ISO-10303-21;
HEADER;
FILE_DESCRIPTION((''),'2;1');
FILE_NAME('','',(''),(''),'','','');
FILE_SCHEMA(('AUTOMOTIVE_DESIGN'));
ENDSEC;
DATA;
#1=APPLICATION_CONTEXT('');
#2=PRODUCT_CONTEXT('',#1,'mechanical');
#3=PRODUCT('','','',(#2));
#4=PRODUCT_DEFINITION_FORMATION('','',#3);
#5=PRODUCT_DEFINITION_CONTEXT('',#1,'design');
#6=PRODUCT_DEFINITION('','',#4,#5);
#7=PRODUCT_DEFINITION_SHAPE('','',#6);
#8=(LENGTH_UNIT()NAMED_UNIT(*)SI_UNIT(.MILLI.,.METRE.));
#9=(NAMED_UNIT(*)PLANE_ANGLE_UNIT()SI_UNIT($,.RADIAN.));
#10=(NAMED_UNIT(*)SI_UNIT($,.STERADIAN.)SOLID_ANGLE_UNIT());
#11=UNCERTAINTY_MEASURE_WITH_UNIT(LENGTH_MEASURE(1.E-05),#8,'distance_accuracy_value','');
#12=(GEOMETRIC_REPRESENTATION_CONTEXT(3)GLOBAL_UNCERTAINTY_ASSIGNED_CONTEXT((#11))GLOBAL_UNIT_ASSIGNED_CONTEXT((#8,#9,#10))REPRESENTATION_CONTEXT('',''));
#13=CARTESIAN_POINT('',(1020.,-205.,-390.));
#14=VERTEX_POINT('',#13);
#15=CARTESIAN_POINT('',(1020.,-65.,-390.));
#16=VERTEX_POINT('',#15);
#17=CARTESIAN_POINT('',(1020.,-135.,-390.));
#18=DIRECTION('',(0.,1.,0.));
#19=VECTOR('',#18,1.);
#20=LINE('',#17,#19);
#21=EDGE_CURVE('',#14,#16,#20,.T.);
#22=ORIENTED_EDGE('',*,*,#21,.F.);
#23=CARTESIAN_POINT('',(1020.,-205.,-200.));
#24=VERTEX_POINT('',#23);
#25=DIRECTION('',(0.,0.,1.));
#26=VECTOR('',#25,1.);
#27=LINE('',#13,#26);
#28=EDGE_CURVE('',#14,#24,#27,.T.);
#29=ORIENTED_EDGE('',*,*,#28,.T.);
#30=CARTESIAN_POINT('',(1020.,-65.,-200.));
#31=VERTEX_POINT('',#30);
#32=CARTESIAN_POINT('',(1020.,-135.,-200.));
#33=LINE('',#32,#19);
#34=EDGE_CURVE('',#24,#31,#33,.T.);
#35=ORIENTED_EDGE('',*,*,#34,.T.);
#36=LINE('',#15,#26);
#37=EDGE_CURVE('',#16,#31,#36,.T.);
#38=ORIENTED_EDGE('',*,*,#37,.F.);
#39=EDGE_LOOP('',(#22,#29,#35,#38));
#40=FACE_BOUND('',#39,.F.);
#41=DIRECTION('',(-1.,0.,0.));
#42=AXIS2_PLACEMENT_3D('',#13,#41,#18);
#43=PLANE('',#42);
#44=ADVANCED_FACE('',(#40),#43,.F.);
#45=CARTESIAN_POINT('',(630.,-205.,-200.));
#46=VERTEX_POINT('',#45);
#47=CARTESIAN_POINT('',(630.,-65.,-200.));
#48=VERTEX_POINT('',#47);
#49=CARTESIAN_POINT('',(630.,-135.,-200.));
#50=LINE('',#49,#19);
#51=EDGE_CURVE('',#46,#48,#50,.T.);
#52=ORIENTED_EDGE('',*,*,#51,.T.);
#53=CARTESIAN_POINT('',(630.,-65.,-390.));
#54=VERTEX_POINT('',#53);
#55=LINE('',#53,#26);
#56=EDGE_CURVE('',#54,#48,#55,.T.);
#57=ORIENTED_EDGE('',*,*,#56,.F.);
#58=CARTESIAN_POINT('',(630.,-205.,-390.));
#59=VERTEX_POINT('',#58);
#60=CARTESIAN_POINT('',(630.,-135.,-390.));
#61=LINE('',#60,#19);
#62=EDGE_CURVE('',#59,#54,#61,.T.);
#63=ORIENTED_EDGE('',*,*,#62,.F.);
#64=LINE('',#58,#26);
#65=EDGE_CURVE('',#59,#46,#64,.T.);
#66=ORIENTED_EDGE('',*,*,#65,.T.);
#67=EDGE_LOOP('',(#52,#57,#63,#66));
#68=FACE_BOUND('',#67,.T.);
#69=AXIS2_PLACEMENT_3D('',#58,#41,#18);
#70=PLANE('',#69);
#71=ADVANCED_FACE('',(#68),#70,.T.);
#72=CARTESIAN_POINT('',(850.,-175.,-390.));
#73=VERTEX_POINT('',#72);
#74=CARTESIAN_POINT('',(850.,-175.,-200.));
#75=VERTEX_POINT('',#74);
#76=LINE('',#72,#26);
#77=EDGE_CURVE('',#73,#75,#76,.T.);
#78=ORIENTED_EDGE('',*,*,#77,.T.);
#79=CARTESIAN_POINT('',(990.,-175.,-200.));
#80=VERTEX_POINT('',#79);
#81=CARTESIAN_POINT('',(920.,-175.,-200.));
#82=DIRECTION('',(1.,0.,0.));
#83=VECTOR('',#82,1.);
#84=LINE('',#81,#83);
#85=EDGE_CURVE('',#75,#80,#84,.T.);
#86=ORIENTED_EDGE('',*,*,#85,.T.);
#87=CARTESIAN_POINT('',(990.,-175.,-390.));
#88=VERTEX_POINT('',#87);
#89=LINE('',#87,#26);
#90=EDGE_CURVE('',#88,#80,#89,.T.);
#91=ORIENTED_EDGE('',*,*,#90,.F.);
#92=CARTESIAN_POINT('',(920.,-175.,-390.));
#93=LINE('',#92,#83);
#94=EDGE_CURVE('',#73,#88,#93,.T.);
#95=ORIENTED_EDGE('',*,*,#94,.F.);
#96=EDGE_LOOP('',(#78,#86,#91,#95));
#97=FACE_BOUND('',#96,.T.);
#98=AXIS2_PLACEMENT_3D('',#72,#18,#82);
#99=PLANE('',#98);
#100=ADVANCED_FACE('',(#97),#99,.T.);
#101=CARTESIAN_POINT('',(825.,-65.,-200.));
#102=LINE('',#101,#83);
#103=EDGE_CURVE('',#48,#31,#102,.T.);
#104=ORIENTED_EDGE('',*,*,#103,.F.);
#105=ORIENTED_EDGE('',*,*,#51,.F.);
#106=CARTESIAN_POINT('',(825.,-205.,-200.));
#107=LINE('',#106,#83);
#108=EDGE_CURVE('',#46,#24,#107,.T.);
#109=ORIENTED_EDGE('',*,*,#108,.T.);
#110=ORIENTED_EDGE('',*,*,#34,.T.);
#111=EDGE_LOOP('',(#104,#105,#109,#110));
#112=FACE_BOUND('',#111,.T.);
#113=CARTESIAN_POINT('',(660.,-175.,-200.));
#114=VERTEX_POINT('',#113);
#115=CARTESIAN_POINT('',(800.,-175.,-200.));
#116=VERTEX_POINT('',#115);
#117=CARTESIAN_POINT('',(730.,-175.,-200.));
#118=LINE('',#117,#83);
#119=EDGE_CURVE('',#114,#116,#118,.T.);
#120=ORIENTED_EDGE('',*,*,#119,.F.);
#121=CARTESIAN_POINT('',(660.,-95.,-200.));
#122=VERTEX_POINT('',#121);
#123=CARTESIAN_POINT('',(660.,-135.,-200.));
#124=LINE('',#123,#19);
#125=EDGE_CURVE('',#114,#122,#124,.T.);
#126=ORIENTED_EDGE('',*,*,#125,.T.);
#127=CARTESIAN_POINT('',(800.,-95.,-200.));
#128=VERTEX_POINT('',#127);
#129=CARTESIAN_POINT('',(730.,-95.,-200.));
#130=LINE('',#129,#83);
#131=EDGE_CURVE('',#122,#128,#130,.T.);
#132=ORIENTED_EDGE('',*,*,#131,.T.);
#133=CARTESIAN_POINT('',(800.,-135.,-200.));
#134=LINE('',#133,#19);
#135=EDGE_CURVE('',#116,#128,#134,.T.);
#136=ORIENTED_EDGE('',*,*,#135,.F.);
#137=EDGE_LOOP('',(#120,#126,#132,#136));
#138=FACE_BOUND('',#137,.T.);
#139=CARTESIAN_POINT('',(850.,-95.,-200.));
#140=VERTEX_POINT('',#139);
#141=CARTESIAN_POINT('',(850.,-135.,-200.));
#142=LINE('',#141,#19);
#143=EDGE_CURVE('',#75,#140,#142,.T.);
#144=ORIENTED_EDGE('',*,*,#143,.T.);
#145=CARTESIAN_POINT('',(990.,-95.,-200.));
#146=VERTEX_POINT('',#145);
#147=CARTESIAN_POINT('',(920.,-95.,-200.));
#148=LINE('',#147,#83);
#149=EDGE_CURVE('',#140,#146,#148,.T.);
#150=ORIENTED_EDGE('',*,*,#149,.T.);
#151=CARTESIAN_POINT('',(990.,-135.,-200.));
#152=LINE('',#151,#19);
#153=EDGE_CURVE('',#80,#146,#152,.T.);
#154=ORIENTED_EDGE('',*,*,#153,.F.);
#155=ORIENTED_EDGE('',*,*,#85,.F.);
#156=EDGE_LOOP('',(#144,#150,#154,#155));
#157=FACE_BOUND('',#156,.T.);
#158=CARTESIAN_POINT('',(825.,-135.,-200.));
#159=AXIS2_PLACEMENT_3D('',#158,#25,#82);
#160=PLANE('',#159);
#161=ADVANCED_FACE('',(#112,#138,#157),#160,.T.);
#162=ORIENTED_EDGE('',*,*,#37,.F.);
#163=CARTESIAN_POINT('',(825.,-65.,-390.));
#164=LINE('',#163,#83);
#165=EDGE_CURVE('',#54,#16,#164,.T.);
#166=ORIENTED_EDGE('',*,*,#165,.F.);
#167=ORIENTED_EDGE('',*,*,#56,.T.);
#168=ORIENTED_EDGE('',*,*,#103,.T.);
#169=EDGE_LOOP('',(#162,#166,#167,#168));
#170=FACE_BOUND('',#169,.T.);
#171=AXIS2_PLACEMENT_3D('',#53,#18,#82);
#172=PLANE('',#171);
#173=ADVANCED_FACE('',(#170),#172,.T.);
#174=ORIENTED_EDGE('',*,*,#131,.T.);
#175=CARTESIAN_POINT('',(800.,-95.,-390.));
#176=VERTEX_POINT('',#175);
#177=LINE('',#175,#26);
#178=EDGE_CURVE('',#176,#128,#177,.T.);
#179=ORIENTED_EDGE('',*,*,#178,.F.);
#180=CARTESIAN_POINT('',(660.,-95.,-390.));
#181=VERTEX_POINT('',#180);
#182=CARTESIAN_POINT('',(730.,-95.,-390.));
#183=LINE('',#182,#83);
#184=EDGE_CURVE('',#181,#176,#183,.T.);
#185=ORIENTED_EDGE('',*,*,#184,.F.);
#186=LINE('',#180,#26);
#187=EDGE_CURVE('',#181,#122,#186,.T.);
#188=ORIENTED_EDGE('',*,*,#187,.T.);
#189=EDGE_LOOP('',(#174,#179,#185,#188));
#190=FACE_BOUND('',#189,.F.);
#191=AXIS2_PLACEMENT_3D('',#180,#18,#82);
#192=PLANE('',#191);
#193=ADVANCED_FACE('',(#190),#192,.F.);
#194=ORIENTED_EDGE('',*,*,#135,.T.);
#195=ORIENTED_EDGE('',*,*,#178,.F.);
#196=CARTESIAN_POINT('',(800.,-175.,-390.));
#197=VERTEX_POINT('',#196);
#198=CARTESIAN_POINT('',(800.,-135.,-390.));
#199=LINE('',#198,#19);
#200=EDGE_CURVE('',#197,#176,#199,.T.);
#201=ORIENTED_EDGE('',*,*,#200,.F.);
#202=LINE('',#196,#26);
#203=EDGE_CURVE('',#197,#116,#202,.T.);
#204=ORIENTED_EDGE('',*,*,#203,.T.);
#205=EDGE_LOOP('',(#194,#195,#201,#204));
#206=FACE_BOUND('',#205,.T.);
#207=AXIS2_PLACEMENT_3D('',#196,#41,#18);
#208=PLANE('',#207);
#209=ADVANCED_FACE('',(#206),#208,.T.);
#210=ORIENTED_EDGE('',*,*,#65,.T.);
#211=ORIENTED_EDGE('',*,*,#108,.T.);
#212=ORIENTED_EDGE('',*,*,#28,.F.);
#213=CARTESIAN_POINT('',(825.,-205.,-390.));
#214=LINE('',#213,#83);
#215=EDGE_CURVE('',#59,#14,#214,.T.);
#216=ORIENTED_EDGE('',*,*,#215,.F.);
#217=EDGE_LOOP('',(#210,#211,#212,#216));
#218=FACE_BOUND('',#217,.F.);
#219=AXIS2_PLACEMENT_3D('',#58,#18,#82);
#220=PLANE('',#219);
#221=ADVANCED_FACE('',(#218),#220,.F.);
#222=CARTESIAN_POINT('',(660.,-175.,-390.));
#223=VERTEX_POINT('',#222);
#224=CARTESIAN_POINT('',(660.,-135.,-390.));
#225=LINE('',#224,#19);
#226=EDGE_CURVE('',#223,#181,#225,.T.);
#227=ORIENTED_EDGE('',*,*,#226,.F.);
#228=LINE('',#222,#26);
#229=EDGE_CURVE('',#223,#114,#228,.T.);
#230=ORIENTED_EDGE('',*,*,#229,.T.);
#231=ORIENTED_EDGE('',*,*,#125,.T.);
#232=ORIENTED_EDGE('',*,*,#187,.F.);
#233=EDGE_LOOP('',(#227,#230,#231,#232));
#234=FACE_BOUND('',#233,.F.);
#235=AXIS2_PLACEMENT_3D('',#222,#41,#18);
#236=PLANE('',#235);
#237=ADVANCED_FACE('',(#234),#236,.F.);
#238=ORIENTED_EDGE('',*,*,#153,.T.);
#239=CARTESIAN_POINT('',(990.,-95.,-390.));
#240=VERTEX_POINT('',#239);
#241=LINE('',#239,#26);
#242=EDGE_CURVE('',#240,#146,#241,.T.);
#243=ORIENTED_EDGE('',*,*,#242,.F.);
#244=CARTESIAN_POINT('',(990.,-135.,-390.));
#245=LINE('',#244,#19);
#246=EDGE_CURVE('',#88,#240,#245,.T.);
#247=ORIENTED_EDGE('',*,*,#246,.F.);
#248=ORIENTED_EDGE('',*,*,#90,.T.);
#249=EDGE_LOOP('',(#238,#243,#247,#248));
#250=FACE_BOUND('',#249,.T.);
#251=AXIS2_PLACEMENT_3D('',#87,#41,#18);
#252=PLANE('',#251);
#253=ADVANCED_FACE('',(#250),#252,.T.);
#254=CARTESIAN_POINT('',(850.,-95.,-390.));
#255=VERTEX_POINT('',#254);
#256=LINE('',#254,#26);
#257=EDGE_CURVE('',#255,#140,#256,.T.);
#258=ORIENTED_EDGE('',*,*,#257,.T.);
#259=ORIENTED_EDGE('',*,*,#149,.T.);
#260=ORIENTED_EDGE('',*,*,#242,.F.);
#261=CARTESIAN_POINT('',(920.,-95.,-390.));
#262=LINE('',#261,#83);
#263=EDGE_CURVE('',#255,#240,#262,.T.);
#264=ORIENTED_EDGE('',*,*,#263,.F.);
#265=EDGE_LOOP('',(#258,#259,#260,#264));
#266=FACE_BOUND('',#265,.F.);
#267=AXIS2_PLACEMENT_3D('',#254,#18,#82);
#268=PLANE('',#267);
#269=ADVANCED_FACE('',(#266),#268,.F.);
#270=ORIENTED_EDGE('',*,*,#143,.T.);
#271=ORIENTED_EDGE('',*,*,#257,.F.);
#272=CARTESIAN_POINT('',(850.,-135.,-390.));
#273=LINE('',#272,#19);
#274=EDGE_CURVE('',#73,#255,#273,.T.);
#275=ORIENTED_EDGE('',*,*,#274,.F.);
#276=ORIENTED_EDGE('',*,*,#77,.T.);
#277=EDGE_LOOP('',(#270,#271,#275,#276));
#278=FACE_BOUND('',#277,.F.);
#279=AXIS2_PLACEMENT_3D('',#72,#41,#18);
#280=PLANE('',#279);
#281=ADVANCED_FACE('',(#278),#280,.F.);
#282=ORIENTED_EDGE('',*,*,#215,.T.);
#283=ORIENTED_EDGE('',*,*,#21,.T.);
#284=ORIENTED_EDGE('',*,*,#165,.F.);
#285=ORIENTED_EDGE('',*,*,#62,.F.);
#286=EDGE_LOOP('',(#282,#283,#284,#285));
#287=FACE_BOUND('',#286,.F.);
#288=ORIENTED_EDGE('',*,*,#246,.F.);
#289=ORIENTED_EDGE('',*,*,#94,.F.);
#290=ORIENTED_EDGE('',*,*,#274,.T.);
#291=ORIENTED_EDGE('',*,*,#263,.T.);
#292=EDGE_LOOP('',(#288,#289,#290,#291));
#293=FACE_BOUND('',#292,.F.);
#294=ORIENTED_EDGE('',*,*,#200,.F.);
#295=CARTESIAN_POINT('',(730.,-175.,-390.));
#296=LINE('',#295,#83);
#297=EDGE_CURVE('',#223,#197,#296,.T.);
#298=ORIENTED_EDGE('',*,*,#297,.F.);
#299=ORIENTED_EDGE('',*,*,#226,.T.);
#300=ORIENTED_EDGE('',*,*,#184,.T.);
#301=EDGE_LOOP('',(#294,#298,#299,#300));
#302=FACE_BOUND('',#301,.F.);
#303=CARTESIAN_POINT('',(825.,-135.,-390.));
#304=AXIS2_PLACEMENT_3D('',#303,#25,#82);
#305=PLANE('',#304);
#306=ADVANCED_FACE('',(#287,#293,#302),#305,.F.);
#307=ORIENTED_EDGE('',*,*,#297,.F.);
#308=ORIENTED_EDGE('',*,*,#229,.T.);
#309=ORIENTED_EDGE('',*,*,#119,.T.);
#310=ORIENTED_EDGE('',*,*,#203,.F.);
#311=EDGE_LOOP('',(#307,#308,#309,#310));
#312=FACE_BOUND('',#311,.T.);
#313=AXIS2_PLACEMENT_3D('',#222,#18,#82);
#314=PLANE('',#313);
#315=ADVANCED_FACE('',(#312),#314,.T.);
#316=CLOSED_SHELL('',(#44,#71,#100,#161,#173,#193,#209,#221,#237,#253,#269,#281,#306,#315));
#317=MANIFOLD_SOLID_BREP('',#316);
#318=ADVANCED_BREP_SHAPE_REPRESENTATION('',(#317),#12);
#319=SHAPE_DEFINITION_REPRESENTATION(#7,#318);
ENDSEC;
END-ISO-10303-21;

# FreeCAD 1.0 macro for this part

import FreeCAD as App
import Part
import Sketcher
from FreeCAD import Vector
Q = App.Units.Quantity


def add_polygon(sketch, points):
    """Adds a closed chain of lines whose ends are joined by coincident constraints."""
    first, n = sketch.GeometryCount, len(points)
    for a, b in zip(points, points[1:] + points[:1]):
        sketch.addGeometry(Part.LineSegment(App.Vector(*a, 0), App.Vector(*b, 0)), False)
    for i in range(n):
        sketch.addConstraint(Sketcher.Constraint("Coincident", first + i, 2, first + (i + 1) % n, 1))

doc = App.newDocument("Part")
body = doc.addObject("PartDesign::Body", "Body")

# Sketch on XY plane
sketch1 = body.newObject("Sketcher::SketchObject", "Sketch")
sketch1.AttachmentSupport = (doc.getObject("XY_Plane"), [""])
sketch1.MapMode = "FlatFace"
add_polygon(sketch1, [(220, 110), (220, 30), (360, 30), (360, 110)])  # lines 0-3
sketch1.addConstraint(Sketcher.Constraint("Vertical", 0))
sketch1.addConstraint(Sketcher.Constraint("Horizontal", 1))
sketch1.addConstraint(Sketcher.Constraint("Vertical", 2))
sketch1.addConstraint(Sketcher.Constraint("Horizontal", 3))
sketch1.addConstraint(Sketcher.Constraint("DistanceX", 1, 1, 1, 2, Q("140 mm")))
sketch1.addConstraint(Sketcher.Constraint("DistanceY", 0, 2, 0, 1, Q("80 mm")))
sketch1.addConstraint(Sketcher.Constraint("DistanceX", -1, 1, 0, 2, Q("220 mm")))
sketch1.addConstraint(Sketcher.Constraint("DistanceY", -1, 1, 0, 2, Q("30 mm")))
pad1 = body.newObject("PartDesign::Pad", "Pad")
pad1.Profile = sketch1
pad1.Length = 190
body2 = doc.addObject("PartDesign::Body", "Body001")
body2.AllowCompound = True

# Sketch on XY plane
sketch2 = body2.newObject("Sketcher::SketchObject", "Sketch001")
sketch2.AttachmentSupport = (doc.getObject("XY_Plane001"), [""])
sketch2.MapMode = "FlatFace"
add_polygon(sketch2, [(30, 110), (30, 30), (170, 30), (170, 110)])  # lines 0-3
sketch2.addConstraint(Sketcher.Constraint("Vertical", 0))
sketch2.addConstraint(Sketcher.Constraint("Horizontal", 1))
sketch2.addConstraint(Sketcher.Constraint("Vertical", 2))
sketch2.addConstraint(Sketcher.Constraint("Horizontal", 3))
sketch2.addConstraint(Sketcher.Constraint("DistanceX", 1, 1, 1, 2, Q("140 mm")))
sketch2.addConstraint(Sketcher.Constraint("DistanceY", 0, 2, 0, 1, Q("80 mm")))
sketch2.addConstraint(Sketcher.Constraint("DistanceX", -1, 1, 0, 2, Q("30 mm")))
sketch2.addConstraint(Sketcher.Constraint("DistanceY", -1, 1, 0, 2, Q("30 mm")))
pad2 = body2.newObject("PartDesign::Pad", "Pad001")
pad2.Profile = sketch2
pad2.Length = 190
doc.recompute()

boolean = body2.newObject("PartDesign::Boolean", "Boolean")
boolean.Type = "Fuse"
boolean.addObjects([body])
body3 = doc.addObject("PartDesign::Body", "Body002")

# Sketch on XY plane
sketch3 = body3.newObject("Sketcher::SketchObject", "Sketch002")
sketch3.AttachmentSupport = (doc.getObject("XY_Plane002"), [""])
sketch3.MapMode = "FlatFace"
add_polygon(sketch3, [(0, 140), (0, 0), (390, 0), (390, 140)])  # lines 0-3
sketch3.addConstraint(Sketcher.Constraint("Vertical", 0))
sketch3.addConstraint(Sketcher.Constraint("Horizontal", 1))
sketch3.addConstraint(Sketcher.Constraint("Vertical", 2))
sketch3.addConstraint(Sketcher.Constraint("Horizontal", 3))
sketch3.addConstraint(Sketcher.Constraint("Coincident", 0, 2, -1, 1))
sketch3.addConstraint(Sketcher.Constraint("DistanceX", 1, 1, 1, 2, Q("390 mm")))
sketch3.addConstraint(Sketcher.Constraint("DistanceY", 0, 2, 0, 1, Q("140 mm")))
pad3 = body3.newObject("PartDesign::Pad", "Pad002")
pad3.Profile = sketch3
pad3.Length = 190
doc.recompute()

boolean2 = body3.newObject("PartDesign::Boolean", "Boolean001")
boolean2.Type = "Cut"
boolean2.addObjects([body2])
body4 = doc.addObject("PartDesign::Body", "Body003")
doc.recompute()

body3.Placement = App.Placement(Vector(630, -205, -390), App.Rotation(Vector(0, 0, 1), 0))
boolean3 = body4.newObject("PartDesign::Boolean", "Boolean002")
boolean3.Type = "Fuse"
boolean3.addObjects([body3])

doc.recompute()
